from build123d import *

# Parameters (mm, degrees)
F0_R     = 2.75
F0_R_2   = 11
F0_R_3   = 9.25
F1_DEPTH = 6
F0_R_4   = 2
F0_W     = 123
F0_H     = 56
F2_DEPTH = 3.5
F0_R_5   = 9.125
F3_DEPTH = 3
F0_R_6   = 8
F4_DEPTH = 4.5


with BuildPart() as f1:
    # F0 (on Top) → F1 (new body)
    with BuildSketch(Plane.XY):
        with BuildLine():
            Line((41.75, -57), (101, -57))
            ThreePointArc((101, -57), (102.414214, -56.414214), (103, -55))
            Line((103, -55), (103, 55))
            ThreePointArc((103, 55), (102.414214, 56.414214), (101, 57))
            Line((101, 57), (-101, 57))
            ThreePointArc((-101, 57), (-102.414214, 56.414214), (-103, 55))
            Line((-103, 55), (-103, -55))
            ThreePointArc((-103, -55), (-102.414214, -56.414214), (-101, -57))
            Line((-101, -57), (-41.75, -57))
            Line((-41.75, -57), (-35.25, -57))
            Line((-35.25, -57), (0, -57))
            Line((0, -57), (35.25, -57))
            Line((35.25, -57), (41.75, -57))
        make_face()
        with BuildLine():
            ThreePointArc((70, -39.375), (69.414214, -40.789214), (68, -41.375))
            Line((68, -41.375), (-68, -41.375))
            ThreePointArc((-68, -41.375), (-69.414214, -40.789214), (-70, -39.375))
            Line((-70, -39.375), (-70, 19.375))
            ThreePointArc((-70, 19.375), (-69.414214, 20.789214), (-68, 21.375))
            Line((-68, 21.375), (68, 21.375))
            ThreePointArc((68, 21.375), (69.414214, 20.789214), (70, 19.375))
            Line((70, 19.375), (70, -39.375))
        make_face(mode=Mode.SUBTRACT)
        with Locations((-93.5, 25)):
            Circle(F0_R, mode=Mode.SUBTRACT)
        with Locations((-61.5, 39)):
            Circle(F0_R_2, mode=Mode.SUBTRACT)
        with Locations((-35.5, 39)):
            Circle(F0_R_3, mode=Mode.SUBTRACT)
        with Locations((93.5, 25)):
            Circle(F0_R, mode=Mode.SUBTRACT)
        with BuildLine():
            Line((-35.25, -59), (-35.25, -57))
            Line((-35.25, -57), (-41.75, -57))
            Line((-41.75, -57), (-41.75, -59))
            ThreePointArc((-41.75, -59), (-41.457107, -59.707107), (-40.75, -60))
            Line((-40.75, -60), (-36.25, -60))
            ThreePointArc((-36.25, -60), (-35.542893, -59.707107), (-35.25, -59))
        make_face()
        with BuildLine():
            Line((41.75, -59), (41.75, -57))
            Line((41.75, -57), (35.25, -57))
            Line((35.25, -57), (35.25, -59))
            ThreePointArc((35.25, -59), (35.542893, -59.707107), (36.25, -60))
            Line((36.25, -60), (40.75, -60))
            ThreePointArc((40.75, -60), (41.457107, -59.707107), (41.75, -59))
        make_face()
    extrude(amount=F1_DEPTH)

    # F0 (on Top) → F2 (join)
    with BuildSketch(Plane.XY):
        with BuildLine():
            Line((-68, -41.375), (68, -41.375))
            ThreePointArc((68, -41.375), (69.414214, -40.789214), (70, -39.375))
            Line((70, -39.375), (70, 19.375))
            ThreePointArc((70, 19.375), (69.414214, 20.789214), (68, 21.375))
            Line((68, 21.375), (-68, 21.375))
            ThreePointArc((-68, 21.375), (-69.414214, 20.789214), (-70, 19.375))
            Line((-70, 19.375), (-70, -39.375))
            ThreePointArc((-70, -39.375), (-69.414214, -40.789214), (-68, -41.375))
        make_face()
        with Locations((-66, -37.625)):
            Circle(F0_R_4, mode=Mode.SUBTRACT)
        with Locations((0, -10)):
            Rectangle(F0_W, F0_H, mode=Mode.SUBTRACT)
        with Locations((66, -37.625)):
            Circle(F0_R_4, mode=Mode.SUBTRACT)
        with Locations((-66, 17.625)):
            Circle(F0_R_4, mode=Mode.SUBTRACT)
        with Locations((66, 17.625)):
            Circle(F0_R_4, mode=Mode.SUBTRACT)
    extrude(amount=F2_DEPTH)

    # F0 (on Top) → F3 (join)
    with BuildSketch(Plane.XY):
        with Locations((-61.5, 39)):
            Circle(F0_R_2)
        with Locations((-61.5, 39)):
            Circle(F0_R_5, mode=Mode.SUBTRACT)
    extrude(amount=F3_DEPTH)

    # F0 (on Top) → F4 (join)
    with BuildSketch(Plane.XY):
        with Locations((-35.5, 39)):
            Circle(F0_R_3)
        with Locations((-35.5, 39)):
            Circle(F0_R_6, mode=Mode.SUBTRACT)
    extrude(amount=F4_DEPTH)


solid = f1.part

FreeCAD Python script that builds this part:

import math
import FreeCAD as App
import Part
import Sketcher
from FreeCAD import Vector


def add_polygon(sketch, points):
    """Adds a closed chain of lines whose ends are joined by coincident constraints."""
    first, n = sketch.GeometryCount, len(points)
    for a, b in zip(points, points[1:] + points[:1]):
        sketch.addGeometry(Part.LineSegment(App.Vector(*a, 0), App.Vector(*b, 0)), False)
    for i in range(n):
        sketch.addConstraint(Sketcher.Constraint("Coincident", first + i, 2, first + (i + 1) % n, 1))

doc = App.newDocument("Part")
body = doc.addObject("PartDesign::Body", "Body")

# Sketch on XY plane
sketch1 = body.newObject("Sketcher::SketchObject", "Sketch")
sketch1.AttachmentSupport = (doc.getObject("XY_Plane"), [""])
sketch1.MapMode = "FlatFace"
sketch1.addGeometry([
    Part.ArcOfCircle(Part.Circle(Vector(101.000001, -55.000001, 0), Vector(0, 0, 1), 1.999999), math.radians(-90.000043), math.radians(0.000043)),  # 0
    Part.LineSegment(Vector(103, -55, 0), Vector(103, 55, 0)),  # 1
    Part.ArcOfCircle(Part.Circle(Vector(101.000001, 55.000001, 0), Vector(0, 0, 1), 1.999999), math.radians(-0.000043), math.radians(90.000043)),  # 2
    Part.LineSegment(Vector(101, 57, 0), Vector(-101, 57, 0)),  # 3
    Part.ArcOfCircle(Part.Circle(Vector(-101.000001, 55.000001, 0), Vector(0, 0, 1), 1.999999), math.radians(89.999957), math.radians(180.000043)),  # 4
    Part.LineSegment(Vector(-103, 55, 0), Vector(-103, -55, 0)),  # 5
    Part.ArcOfCircle(Part.Circle(Vector(-101.000001, -55.000001, 0), Vector(0, 0, 1), 1.999999), math.radians(179.999957), math.radians(270.000043)),  # 6
    Part.LineSegment(Vector(-101, -57, 0), Vector(-41.75, -57, 0)),  # 7
    Part.LineSegment(Vector(-41.75, -57, 0), Vector(-41.75, -59, 0)),  # 8
    Part.ArcOfCircle(Part.Circle(Vector(-40.750001, -59.000001, 0), Vector(0, 0, 1), 0.999999), math.radians(179.999957), math.radians(270.000043)),  # 9
    Part.LineSegment(Vector(-40.75, -60, 0), Vector(-36.25, -60, 0)),  # 10
    Part.ArcOfCircle(Part.Circle(Vector(-36.249999, -59.000001, 0), Vector(0, 0, 1), 0.999999), math.radians(-90.000043), math.radians(0.000043)),  # 11
    Part.LineSegment(Vector(-35.25, -59, 0), Vector(-35.25, -57, 0)),  # 12
    Part.LineSegment(Vector(-35.25, -57, 0), Vector(35.25, -57, 0)),  # 13
    Part.LineSegment(Vector(35.25, -57, 0), Vector(35.25, -59, 0)),  # 14
    Part.ArcOfCircle(Part.Circle(Vector(36.249999, -59.000001, 0), Vector(0, 0, 1), 0.999999), math.radians(179.999957), math.radians(270.000043)),  # 15
    Part.LineSegment(Vector(36.25, -60, 0), Vector(40.75, -60, 0)),  # 16
    Part.ArcOfCircle(Part.Circle(Vector(40.750001, -59.000001, 0), Vector(0, 0, 1), 0.999999), math.radians(-90.000043), math.radians(0.000043)),  # 17
    Part.LineSegment(Vector(41.75, -59, 0), Vector(41.75, -57, 0)),  # 18
    Part.LineSegment(Vector(41.75, -57, 0), Vector(101, -57, 0)),  # 19
    Part.LineSegment(Vector(70, 19.375, 0), Vector(70, -39.375, 0)),  # 20
    Part.ArcOfCircle(Part.Circle(Vector(68.000001, -39.375001, 0), Vector(0, 0, 1), 1.999999), math.radians(-90.000043), math.radians(0.000043)),  # 21
    Part.LineSegment(Vector(68, -41.375, 0), Vector(-68, -41.375, 0)),  # 22
    Part.ArcOfCircle(Part.Circle(Vector(-68.000001, -39.375001, 0), Vector(0, 0, 1), 1.999999), math.radians(179.999957), math.radians(270.000043)),  # 23
    Part.LineSegment(Vector(-70, -39.375, 0), Vector(-70, 19.375, 0)),  # 24
    Part.ArcOfCircle(Part.Circle(Vector(-68.000001, 19.375001, 0), Vector(0, 0, 1), 1.999999), math.radians(89.999957), math.radians(180.000043)),  # 25
    Part.LineSegment(Vector(-68, 21.375, 0), Vector(68, 21.375, 0)),  # 26
    Part.ArcOfCircle(Part.Circle(Vector(68.000001, 19.375001, 0), Vector(0, 0, 1), 1.999999), math.radians(-0.000043), math.radians(90.000043)),  # 27
    Part.Circle(Vector(-93.5, 25, 0), Vector(0, 0, 1), 2.75),  # 28
    Part.Circle(Vector(-61.5, 39, 0), Vector(0, 0, 1), 11),  # 29
    Part.Circle(Vector(-35.5, 39, 0), Vector(0, 0, 1), 9.25),  # 30
    Part.Circle(Vector(93.5, 25, 0), Vector(0, 0, 1), 2.75),  # 31
], False)
sketch1.addConstraint([
    Sketcher.Constraint("Tangent", 0, 2, 1, 1),
    Sketcher.Constraint("Tangent", 1, 2, 2, 1),
    Sketcher.Constraint("Tangent", 2, 2, 3, 1),
    Sketcher.Constraint("Tangent", 3, 2, 4, 1),
    Sketcher.Constraint("Tangent", 4, 2, 5, 1),
    Sketcher.Constraint("Tangent", 5, 2, 6, 1),
    Sketcher.Constraint("Tangent", 6, 2, 7, 1),
    Sketcher.Constraint("Coincident", 7, 2, 8, 1),
    Sketcher.Constraint("Tangent", 8, 2, 9, 1),
    Sketcher.Constraint("Tangent", 9, 2, 10, 1),
    Sketcher.Constraint("Tangent", 10, 2, 11, 1),
    Sketcher.Constraint("Tangent", 11, 2, 12, 1),
    Sketcher.Constraint("Coincident", 12, 2, 13, 1),
    Sketcher.Constraint("Coincident", 13, 2, 14, 1),
    Sketcher.Constraint("Tangent", 14, 2, 15, 1),
    Sketcher.Constraint("Tangent", 15, 2, 16, 1),
    Sketcher.Constraint("Tangent", 16, 2, 17, 1),
    Sketcher.Constraint("Tangent", 17, 2, 18, 1),
    Sketcher.Constraint("Coincident", 18, 2, 19, 1),
    Sketcher.Constraint("Tangent", 19, 2, 0, 1),
    Sketcher.Constraint("Tangent", 20, 2, 21, 2),
    Sketcher.Constraint("Tangent", 21, 1, 22, 1),
    Sketcher.Constraint("Tangent", 22, 2, 23, 2),
    Sketcher.Constraint("Tangent", 23, 1, 24, 1),
    Sketcher.Constraint("Tangent", 24, 2, 25, 2),
    Sketcher.Constraint("Tangent", 25, 1, 26, 1),
    Sketcher.Constraint("Tangent", 26, 2, 27, 2),
    Sketcher.Constraint("Tangent", 27, 1, 20, 1),
    Sketcher.Constraint("Vertical", 1),
    Sketcher.Constraint("Horizontal", 3),
    Sketcher.Constraint("Vertical", 5),
    Sketcher.Constraint("Horizontal", 7),
    Sketcher.Constraint("Vertical", 8),
    Sketcher.Constraint("Horizontal", 10),
    Sketcher.Constraint("Vertical", 12),
    Sketcher.Constraint("Horizontal", 13),
    Sketcher.Constraint("Vertical", 14),
    Sketcher.Constraint("Horizontal", 16),
    Sketcher.Constraint("Vertical", 18),
    Sketcher.Constraint("Horizontal", 19),
    Sketcher.Constraint("Vertical", 20),
    Sketcher.Constraint("Horizontal", 22),
    Sketcher.Constraint("Vertical", 24),
    Sketcher.Constraint("Horizontal", 26),
    Sketcher.Constraint("Equal", 0, 2),
    Sketcher.Constraint("Equal", 2, 4),
    Sketcher.Constraint("Equal", 4, 6),
    Sketcher.Constraint("Equal", 9, 11),
    Sketcher.Constraint("Equal", 11, 15),
    Sketcher.Constraint("Equal", 15, 17),
    Sketcher.Constraint("Equal", 6, 21),
    Sketcher.Constraint("Equal", 21, 23),
    Sketcher.Constraint("Equal", 23, 25),
    Sketcher.Constraint("Equal", 25, 27),
    Sketcher.Constraint("Equal", 28, 31),
    Sketcher.Constraint("Symmetric", 0, 3, 4, 3, -1, 1),
    Sketcher.Constraint("Symmetric", 11, 3, 15, 3, -2),
    Sketcher.Constraint("Symmetric", 28, 3, 31, 3, -2),
    Sketcher.Constraint("Symmetric", 7, 2, 18, 2, -2),
    Sketcher.Constraint("Horizontal", 29, 3, 30, 3),
    Sketcher.Constraint("Horizontal", 7, 2, 12, 2),
    Sketcher.Constraint("Diameter", 29, 22.0),
    Sketcher.Constraint("Radius", 0, 1.999999),
    Sketcher.Constraint("Radius", 9, 0.999999),
    Sketcher.Constraint("Diameter", 28, 5.5),
    Sketcher.Constraint("Diameter", 30, 18.5),
    Sketcher.Constraint("DistanceX", 3, 2, 3, 1, 202.0),
    Sketcher.Constraint("DistanceX", 22, 2, 22, 1, 136.0),
    Sketcher.Constraint("DistanceY", 1, 1, 1, 2, 110.0),
    Sketcher.Constraint("DistanceY", 8, 2, 8, 1, 2.0),
    Sketcher.Constraint("DistanceX", 10, 1, 10, 2, 4.5),
    Sketcher.Constraint("DistanceX", 13, 1, 13, 2, 70.5),
    Sketcher.Constraint("DistanceX", -1, 1, 21, 3, 68.000001),
    Sketcher.Constraint("DistanceY", -1, 1, 28, 3, 25.0),
    Sketcher.Constraint("DistanceY", -1, 1, 29, 3, 39.0),
    Sketcher.Constraint("DistanceX", 28, 3, 29, 3, 32.0),
    Sketcher.Constraint("DistanceX", 29, 3, 30, 3, 26.0),
    Sketcher.Constraint("DistanceY", 20, 2, 20, 1, 58.75),
    Sketcher.Constraint("DistanceX", 28, 3, -1, 1, 93.5),
    Sketcher.Constraint("DistanceY", 21, 3, -1, 1, 39.375001),
])
pad1 = body.newObject("PartDesign::Pad", "Pad")
pad1.Profile = sketch1
pad1.Length = 6

# Sketch on XY plane
sketch2 = body.newObject("Sketcher::SketchObject", "Sketch001")
sketch2.AttachmentSupport = (doc.getObject("XY_Plane"), [""])
sketch2.MapMode = "FlatFace"
sketch2.addGeometry(Part.LineSegment(Vector(-68, -41.375, 0), Vector(68, -41.375, 0)), False)  # 0
sketch2.addGeometry(Part.ArcOfCircle(Part.Circle(Vector(68.000001, -39.375001, 0), Vector(0, 0, 1), 1.999999), math.radians(-90.000043), math.radians(0.000043)), False)  # 1
sketch2.addGeometry(Part.LineSegment(Vector(70, -39.375, 0), Vector(70, 19.375, 0)), False)  # 2
sketch2.addGeometry(Part.ArcOfCircle(Part.Circle(Vector(68.000001, 19.375001, 0), Vector(0, 0, 1), 1.999999), math.radians(-0.000043), math.radians(90.000043)), False)  # 3
sketch2.addGeometry(Part.LineSegment(Vector(68, 21.375, 0), Vector(-68, 21.375, 0)), False)  # 4
sketch2.addGeometry(Part.ArcOfCircle(Part.Circle(Vector(-68.000001, 19.375001, 0), Vector(0, 0, 1), 1.999999), math.radians(89.999957), math.radians(180.000043)), False)  # 5
sketch2.addGeometry(Part.LineSegment(Vector(-70, 19.375, 0), Vector(-70, -39.375, 0)), False)  # 6
sketch2.addGeometry(Part.ArcOfCircle(Part.Circle(Vector(-68.000001, -39.375001, 0), Vector(0, 0, 1), 1.999999), math.radians(179.999957), math.radians(270.000043)), False)  # 7
sketch2.addGeometry(Part.Circle(Vector(-66, -37.625, 0), Vector(0, 0, 1), 2), False)  # 8
sketch2.addGeometry(Part.Circle(Vector(66, -37.625, 0), Vector(0, 0, 1), 2), False)  # 9
add_polygon(sketch2, [(61.5, -38), (-61.5, -38), (-61.5, 18), (61.5, 18)])  # lines 10-13
sketch2.addGeometry(Part.Circle(Vector(-66, 17.625, 0), Vector(0, 0, 1), 2), False)  # 14
sketch2.addGeometry(Part.Circle(Vector(66, 17.625, 0), Vector(0, 0, 1), 2), False)  # 15
sketch2.addConstraint([
    Sketcher.Constraint("Tangent", 0, 2, 1, 1),
    Sketcher.Constraint("Tangent", 1, 2, 2, 1),
    Sketcher.Constraint("Tangent", 2, 2, 3, 1),
    Sketcher.Constraint("Tangent", 3, 2, 4, 1),
    Sketcher.Constraint("Tangent", 4, 2, 5, 1),
    Sketcher.Constraint("Tangent", 5, 2, 6, 1),
    Sketcher.Constraint("Tangent", 6, 2, 7, 1),
    Sketcher.Constraint("Tangent", 7, 2, 0, 1),
    Sketcher.Constraint("Horizontal", 0),
    Sketcher.Constraint("Vertical", 2),
    Sketcher.Constraint("Horizontal", 4),
    Sketcher.Constraint("Vertical", 6),
    Sketcher.Constraint("Horizontal", 10),
    Sketcher.Constraint("Vertical", 11),
    Sketcher.Constraint("Horizontal", 12),
    Sketcher.Constraint("Vertical", 13),
    Sketcher.Constraint("Equal", 1, 3),
    Sketcher.Constraint("Equal", 3, 5),
    Sketcher.Constraint("Equal", 5, 7),
    Sketcher.Constraint("Equal", 7, 8),
    Sketcher.Constraint("Equal", 8, 9),
    Sketcher.Constraint("Equal", 9, 14),
    Sketcher.Constraint("Equal", 14, 15),
    Sketcher.Constraint("Symmetric", 8, 3, 9, 3, -2),
    Sketcher.Constraint("Symmetric", 14, 3, 15, 3, -2),
    Sketcher.Constraint("Vertical", 8, 3, 14, 3),
    Sketcher.Constraint("Diameter", 8, 4.0),
    Sketcher.Constraint("DistanceX", 0, 1, 0, 2, 136.0),
    Sketcher.Constraint("DistanceX", 10, 2, 10, 1, 123.0),
    Sketcher.Constraint("DistanceY", 11, 1, 11, 2, 56.0),
    Sketcher.Constraint("DistanceX", -1, 1, 1, 3, 68.000001),
    Sketcher.Constraint("DistanceX", 8, 3, -1, 1, 66.0),
    Sketcher.Constraint("DistanceY", 10, 2, -1, 1, 38.0),
    Sketcher.Constraint("DistanceY", 8, 3, 5, 3, 57.000001),
    Sketcher.Constraint("DistanceY", 7, 3, 14, 3, 57.000001),
    Sketcher.Constraint("DistanceY", 2, 1, 2, 2, 58.75),
    Sketcher.Constraint("DistanceX", 10, 2, -1, 1, 61.5),
    Sketcher.Constraint("DistanceY", 1, 3, -1, 1, 39.375001),
])
pad2 = body.newObject("PartDesign::Pad", "Pad001")
pad2.Profile = sketch2
pad2.Length = 3.5

# Sketch on XY plane
sketch3 = body.newObject("Sketcher::SketchObject", "Sketch002")
sketch3.AttachmentSupport = (doc.getObject("XY_Plane"), [""])
sketch3.MapMode = "FlatFace"
sketch3.addGeometry([
    Part.Circle(Vector(-61.5, 39, 0), Vector(0, 0, 1), 11),
    Part.Circle(Vector(-61.5, 39, 0), Vector(0, 0, 1), 9.125),
], False)
sketch3.addConstraint([
    Sketcher.Constraint("Coincident", 1, 3, 0, 3),
    Sketcher.Constraint("Diameter", 0, 22.0),
    Sketcher.Constraint("Diameter", 1, 18.25),
    Sketcher.Constraint("DistanceY", -1, 1, 0, 3, 39.0),
    Sketcher.Constraint("DistanceX", 0, 3, -1, 1, 61.5),
])
pad3 = body.newObject("PartDesign::Pad", "Pad002")
pad3.Profile = sketch3
pad3.Length = 3

# Sketch on XY plane
sketch4 = body.newObject("Sketcher::SketchObject", "Sketch003")
sketch4.AttachmentSupport = (doc.getObject("XY_Plane"), [""])
sketch4.MapMode = "FlatFace"
sketch4.addGeometry([
    Part.Circle(Vector(-35.5, 39, 0), Vector(0, 0, 1), 9.25),
    Part.Circle(Vector(-35.5, 39, 0), Vector(0, 0, 1), 8),
], False)
sketch4.addConstraint([
    Sketcher.Constraint("Coincident", 1, 3, 0, 3),
    Sketcher.Constraint("Diameter", 1, 16.0),
    Sketcher.Constraint("Diameter", 0, 18.5),
    Sketcher.Constraint("DistanceY", -1, 1, 0, 3, 39.0),
    Sketcher.Constraint("DistanceX", 0, 3, -1, 1, 35.5),
])
pad4 = body.newObject("PartDesign::Pad", "Pad003")
pad4.Profile = sketch4
pad4.Length = 4.5

doc.recompute()
